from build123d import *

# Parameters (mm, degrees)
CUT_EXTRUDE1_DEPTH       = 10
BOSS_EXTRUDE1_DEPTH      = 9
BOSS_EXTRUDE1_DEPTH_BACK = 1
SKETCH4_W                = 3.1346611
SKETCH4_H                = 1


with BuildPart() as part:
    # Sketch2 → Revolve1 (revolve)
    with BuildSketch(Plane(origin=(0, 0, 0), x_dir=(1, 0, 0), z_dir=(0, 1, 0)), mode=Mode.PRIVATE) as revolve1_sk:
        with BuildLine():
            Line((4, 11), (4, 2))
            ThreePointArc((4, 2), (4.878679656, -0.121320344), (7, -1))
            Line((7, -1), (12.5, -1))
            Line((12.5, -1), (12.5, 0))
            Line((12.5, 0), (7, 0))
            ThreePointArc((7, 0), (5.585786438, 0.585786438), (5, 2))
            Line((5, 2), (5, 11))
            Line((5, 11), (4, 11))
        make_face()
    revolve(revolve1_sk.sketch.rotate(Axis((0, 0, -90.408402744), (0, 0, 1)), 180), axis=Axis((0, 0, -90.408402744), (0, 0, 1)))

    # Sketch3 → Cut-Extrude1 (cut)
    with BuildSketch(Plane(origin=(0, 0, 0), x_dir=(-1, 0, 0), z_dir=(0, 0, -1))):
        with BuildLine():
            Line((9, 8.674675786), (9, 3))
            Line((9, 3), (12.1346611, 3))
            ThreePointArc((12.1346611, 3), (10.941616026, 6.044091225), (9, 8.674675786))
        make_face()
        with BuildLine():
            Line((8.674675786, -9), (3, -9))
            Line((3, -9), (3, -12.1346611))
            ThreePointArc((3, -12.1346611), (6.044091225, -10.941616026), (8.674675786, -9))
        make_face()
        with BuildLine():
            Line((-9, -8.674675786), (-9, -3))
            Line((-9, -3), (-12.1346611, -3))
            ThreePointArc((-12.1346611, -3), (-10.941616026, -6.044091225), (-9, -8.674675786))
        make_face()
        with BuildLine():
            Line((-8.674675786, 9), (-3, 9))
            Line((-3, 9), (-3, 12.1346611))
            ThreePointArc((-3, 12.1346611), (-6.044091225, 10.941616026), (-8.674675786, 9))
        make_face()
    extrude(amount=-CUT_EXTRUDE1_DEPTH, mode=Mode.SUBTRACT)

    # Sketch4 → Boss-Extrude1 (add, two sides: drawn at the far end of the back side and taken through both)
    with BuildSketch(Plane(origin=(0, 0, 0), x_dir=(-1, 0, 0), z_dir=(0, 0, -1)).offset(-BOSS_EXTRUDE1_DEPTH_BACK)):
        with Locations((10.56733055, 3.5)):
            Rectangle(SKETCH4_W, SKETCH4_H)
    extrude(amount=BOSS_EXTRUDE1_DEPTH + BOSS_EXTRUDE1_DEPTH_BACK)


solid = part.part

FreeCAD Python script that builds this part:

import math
import FreeCAD as App
import Part
import Sketcher
Q = App.Units.Quantity


def add_polygon(sketch, points):
    """Adds a closed chain of lines whose ends are joined by coincident constraints."""
    first, n = sketch.GeometryCount, len(points)
    for a, b in zip(points, points[1:] + points[:1]):
        sketch.addGeometry(Part.LineSegment(App.Vector(*a, 0), App.Vector(*b, 0)), False)
    for i in range(n):
        sketch.addConstraint(Sketcher.Constraint("Coincident", first + i, 2, first + (i + 1) % n, 1))

doc = App.newDocument("Part")
params = doc.addObject("Spreadsheet::Sheet", "Params")
for row, (alias, value) in enumerate([
    ("sketch1_radius", "3 mm"),
    ("sketch1_radius2", "2 mm"),
    ("sketch1_height", "9 mm"),
    ("sketch1_width", "5.5 mm"),
    ("revolution_angle", "360 deg"),
    ("sketch2_radius", "12.5 mm"),
    ("pocket1_length", "10 mm"),
    ("sketch3_height", "1 mm"),
    ("pad1_length", "9 mm"),
    ("pad1_length2", "1 mm"),
], start=1):
    params.set(f"A{row}", alias)
    params.set(f"B{row}", "=" + value)
    params.setAlias(f"B{row}", alias)

body = doc.addObject("PartDesign::Body", "Body")

# Sketch on XZ plane
sketch1 = doc.addObject("Sketcher::SketchObject", "Sketch")
body.addObject(sketch1)
sketch1.AttachmentSupport = (doc.XZ_Plane, [""])
sketch1.MapMode = "FlatFace"
sketch1.addGeometry([
    Part.LineSegment(App.Vector(4, -11, 0), App.Vector(4, -2, 0)),  # 0
    Part.ArcOfCircle(Part.Circle(App.Vector(7, -2, 0), App.Vector(0, 0, 1), 3), math.radians(90), math.radians(180)),  # 1
    Part.LineSegment(App.Vector(7, 1, 0), App.Vector(12.5, 1, 0)),  # 2
    Part.LineSegment(App.Vector(12.5, 1, 0), App.Vector(12.5, 0, 0)),  # 3
    Part.LineSegment(App.Vector(12.5, 0, 0), App.Vector(7, 0, 0)),  # 4
    Part.ArcOfCircle(Part.Circle(App.Vector(7, -2, 0), App.Vector(0, 0, 1), 2), math.radians(90), math.radians(180)),  # 5
    Part.LineSegment(App.Vector(5, -2, 0), App.Vector(5, -11, 0)),  # 6
    Part.LineSegment(App.Vector(5, -11, 0), App.Vector(4, -11, 0)),  # 7
], False)
sketch1.addConstraint([
    Sketcher.Constraint("Tangent", 0, 2, 1, 2),
    Sketcher.Constraint("Tangent", 1, 1, 2, 1),
    Sketcher.Constraint("Coincident", 2, 2, 3, 1),
    Sketcher.Constraint("Coincident", 3, 2, 4, 1),
    Sketcher.Constraint("Tangent", 4, 2, 5, 1),
    Sketcher.Constraint("Tangent", 5, 2, 6, 1),
    Sketcher.Constraint("Coincident", 6, 2, 7, 1),
    Sketcher.Constraint("Coincident", 7, 2, 0, 1),
    Sketcher.Constraint("Vertical", 0),
    Sketcher.Constraint("Horizontal", 2),
    Sketcher.Constraint("Vertical", 3),
    Sketcher.Constraint("Horizontal", 4),
    Sketcher.Constraint("Vertical", 6),
    Sketcher.Constraint("Horizontal", 7),
    Sketcher.Constraint("Coincident", 5, 3, 1, 3),
    Sketcher.Constraint("PointOnObject", 3, 2, -1),
    Sketcher.Constraint("Radius", 1, Q("3 mm")),
    Sketcher.Constraint("Radius", 5, Q("2 mm")),
    Sketcher.Constraint("DistanceY", 0, 1, 0, 2, Q("9 mm")),
    Sketcher.Constraint("DistanceX", 2, 1, 2, 2, Q("5.5 mm")),
    Sketcher.Constraint("DistanceX", -1, 1, 1, 3, Q("7 mm")),
])
sketch1.setExpression("Constraints[16]", "Params.sketch1_radius")
sketch1.setExpression("Constraints[17]", "Params.sketch1_radius2")
sketch1.setExpression("Constraints[18]", "Params.sketch1_height")
sketch1.setExpression("Constraints[19]", "Params.sketch1_width")
revolution = doc.addObject("PartDesign::Revolution", "Revolution")
body.addObject(revolution)
revolution.Profile = sketch1
revolution.ReferenceAxis = (sketch1, ["V_Axis"])
revolution.setExpression("Angle", "Params.revolution_angle")

# Sketch on XY plane
sketch2 = doc.addObject("Sketcher::SketchObject", "Sketch001")
body.addObject(sketch2)
sketch2.AttachmentSupport = (doc.XY_Plane, [""])
sketch2.MapMode = "FlatFace"
sketch2.addGeometry([
    Part.LineSegment(App.Vector(-9, 8.7, 0), App.Vector(-9, 3, 0)),  # 0
    Part.LineSegment(App.Vector(-9, 3, 0), App.Vector(-12.1, 3, 0)),  # 1
    Part.ArcOfCircle(Part.Circle(App.Vector(0, 0, 0), App.Vector(0, 0, 1), 12.5), math.radians(136), math.radians(166)),  # 2
    Part.LineSegment(App.Vector(-8.7, -9, 0), App.Vector(-3, -9, 0)),  # 3
    Part.LineSegment(App.Vector(-3, -9, 0), App.Vector(-3, -12.1, 0)),  # 4
    Part.ArcOfCircle(Part.Circle(App.Vector(0, 0, 0), App.Vector(0, 0, 1), 12.5), math.radians(-134), math.radians(-104)),  # 5
    Part.LineSegment(App.Vector(9, -8.7, 0), App.Vector(9, -3, 0)),  # 6
    Part.LineSegment(App.Vector(9, -3, 0), App.Vector(12.1, -3, 0)),  # 7
    Part.ArcOfCircle(Part.Circle(App.Vector(0, 0, 0), App.Vector(0, 0, 1), 12.5), math.radians(-44), math.radians(-14)),  # 8
    Part.LineSegment(App.Vector(8.7, 9, 0), App.Vector(3, 9, 0)),  # 9
    Part.LineSegment(App.Vector(3, 9, 0), App.Vector(3, 12.1, 0)),  # 10
    Part.ArcOfCircle(Part.Circle(App.Vector(0, 0, 0), App.Vector(0, 0, 1), 12.5), math.radians(46), math.radians(76)),  # 11
], False)
sketch2.addConstraint([
    Sketcher.Constraint("Coincident", 0, 2, 1, 1),
    Sketcher.Constraint("Coincident", 1, 2, 2, 2),
    Sketcher.Constraint("Coincident", 2, 1, 0, 1),
    Sketcher.Constraint("Coincident", 3, 2, 4, 1),
    Sketcher.Constraint("Coincident", 4, 2, 5, 2),
    Sketcher.Constraint("Coincident", 5, 1, 3, 1),
    Sketcher.Constraint("Coincident", 6, 2, 7, 1),
    Sketcher.Constraint("Coincident", 7, 2, 8, 2),
    Sketcher.Constraint("Coincident", 8, 1, 6, 1),
    Sketcher.Constraint("Coincident", 9, 2, 10, 1),
    Sketcher.Constraint("Coincident", 10, 2, 11, 2),
    Sketcher.Constraint("Coincident", 11, 1, 9, 1),
    Sketcher.Constraint("Vertical", 0),
    Sketcher.Constraint("Horizontal", 1),
    Sketcher.Constraint("Horizontal", 3),
    Sketcher.Constraint("Vertical", 4),
    Sketcher.Constraint("Vertical", 6),
    Sketcher.Constraint("Horizontal", 7),
    Sketcher.Constraint("Horizontal", 9),
    Sketcher.Constraint("Vertical", 10),
    Sketcher.Constraint("Coincident", 2, 3, -1, 1),
    Sketcher.Constraint("Coincident", 5, 3, -1, 1),
    Sketcher.Constraint("Coincident", 8, 3, -1, 1),
    Sketcher.Constraint("Coincident", 11, 3, -1, 1),
    Sketcher.Constraint("Equal", 2, 5),
    Sketcher.Constraint("Equal", 5, 8),
    Sketcher.Constraint("Equal", 8, 11),
    Sketcher.Constraint("Symmetric", 0, 2, 6, 2, -1, 1),
    Sketcher.Constraint("Symmetric", 3, 2, 9, 2, -1, 1),
    Sketcher.Constraint("Equal", 9, 0),
    Sketcher.Constraint("Equal", 7, 4),
    Sketcher.Constraint("Radius", 2, Q("12.5 mm")),
    Sketcher.Constraint("DistanceX", 0, 2, -1, 1, Q("9 mm")),
    Sketcher.Constraint("DistanceY", -1, 1, 0, 2, Q("3 mm")),
])
sketch2.setExpression("Constraints[31]", "Params.sketch2_radius")
pocket1 = doc.addObject("PartDesign::Pocket", "Pocket")
body.addObject(pocket1)
pocket1.Profile = sketch2
pocket1.setExpression("Length", "Params.pocket1_length")
pocket1.Reversed = True

# Sketch on XY plane
sketch3 = doc.addObject("Sketcher::SketchObject", "Sketch002")
body.addObject(sketch3)
sketch3.AttachmentSupport = (doc.XY_Plane, [""])
sketch3.MapMode = "FlatFace"
add_polygon(sketch3, [(-9, 4), (-9, 3), (-12.1, 3), (-12.1, 4)])  # lines 0-3
sketch3.addConstraint([
    Sketcher.Constraint("Vertical", 0),
    Sketcher.Constraint("Horizontal", 1),
    Sketcher.Constraint("Vertical", 2),
    Sketcher.Constraint("Horizontal", 3),
    Sketcher.Constraint("DistanceY", 0, 2, 0, 1, Q("1 mm")),
    Sketcher.Constraint("DistanceX", 0, 2, -1, 1, Q("9 mm")),
    Sketcher.Constraint("DistanceY", -1, 1, 0, 2, Q("3 mm")),
    Sketcher.Constraint("DistanceX", 1, 2, 1, 1, Q("3.134661 mm")),
])
sketch3.setExpression("Constraints[8]", "Params.sketch3_height")
pad1 = doc.addObject("PartDesign::Pad", "Pad")
body.addObject(pad1)
pad1.Profile = sketch3
pad1.Type = "TwoLengths"
pad1.setExpression("Length", "Params.pad1_length")
pad1.setExpression("Length2", "Params.pad1_length2")
pad1.Reversed = True

doc.recompute()
